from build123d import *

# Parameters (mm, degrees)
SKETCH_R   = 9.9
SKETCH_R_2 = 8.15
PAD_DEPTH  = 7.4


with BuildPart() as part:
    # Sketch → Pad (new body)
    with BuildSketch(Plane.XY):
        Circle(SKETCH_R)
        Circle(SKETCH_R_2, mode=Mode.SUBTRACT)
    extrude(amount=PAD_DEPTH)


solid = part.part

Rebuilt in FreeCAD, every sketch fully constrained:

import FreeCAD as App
import Part
import Sketcher

V = App.Vector
Q = App.Units.Quantity

doc = App.newDocument("Part")
body = doc.addObject("PartDesign::Body", "Body")

sketch1 = body.newObject("Sketcher::SketchObject", "Sketch")
sketch1.AttachmentSupport = (doc.getObject("XY_Plane"), [""])
sketch1.MapMode = "FlatFace"
sketch1.addGeometry([
    Part.Circle(V(0, 0, 0), V(0, 0, 1), 9.9),
    Part.Circle(V(0, 0, 0), V(0, 0, 1), 8.15),
], False)
sketch1.addConstraint([
    Sketcher.Constraint("Coincident", 0, 3, -1, 1),
    Sketcher.Constraint("Coincident", 1, 3, -1, 1),
    Sketcher.Constraint("Diameter", 0, Q("19.8 mm")),
    Sketcher.Constraint("Diameter", 1, Q("16.3 mm")),
])
pad1 = body.newObject("PartDesign::Pad", "Pad")
pad1.Profile = sketch1
pad1.Length = 7.4

doc.recompute()
